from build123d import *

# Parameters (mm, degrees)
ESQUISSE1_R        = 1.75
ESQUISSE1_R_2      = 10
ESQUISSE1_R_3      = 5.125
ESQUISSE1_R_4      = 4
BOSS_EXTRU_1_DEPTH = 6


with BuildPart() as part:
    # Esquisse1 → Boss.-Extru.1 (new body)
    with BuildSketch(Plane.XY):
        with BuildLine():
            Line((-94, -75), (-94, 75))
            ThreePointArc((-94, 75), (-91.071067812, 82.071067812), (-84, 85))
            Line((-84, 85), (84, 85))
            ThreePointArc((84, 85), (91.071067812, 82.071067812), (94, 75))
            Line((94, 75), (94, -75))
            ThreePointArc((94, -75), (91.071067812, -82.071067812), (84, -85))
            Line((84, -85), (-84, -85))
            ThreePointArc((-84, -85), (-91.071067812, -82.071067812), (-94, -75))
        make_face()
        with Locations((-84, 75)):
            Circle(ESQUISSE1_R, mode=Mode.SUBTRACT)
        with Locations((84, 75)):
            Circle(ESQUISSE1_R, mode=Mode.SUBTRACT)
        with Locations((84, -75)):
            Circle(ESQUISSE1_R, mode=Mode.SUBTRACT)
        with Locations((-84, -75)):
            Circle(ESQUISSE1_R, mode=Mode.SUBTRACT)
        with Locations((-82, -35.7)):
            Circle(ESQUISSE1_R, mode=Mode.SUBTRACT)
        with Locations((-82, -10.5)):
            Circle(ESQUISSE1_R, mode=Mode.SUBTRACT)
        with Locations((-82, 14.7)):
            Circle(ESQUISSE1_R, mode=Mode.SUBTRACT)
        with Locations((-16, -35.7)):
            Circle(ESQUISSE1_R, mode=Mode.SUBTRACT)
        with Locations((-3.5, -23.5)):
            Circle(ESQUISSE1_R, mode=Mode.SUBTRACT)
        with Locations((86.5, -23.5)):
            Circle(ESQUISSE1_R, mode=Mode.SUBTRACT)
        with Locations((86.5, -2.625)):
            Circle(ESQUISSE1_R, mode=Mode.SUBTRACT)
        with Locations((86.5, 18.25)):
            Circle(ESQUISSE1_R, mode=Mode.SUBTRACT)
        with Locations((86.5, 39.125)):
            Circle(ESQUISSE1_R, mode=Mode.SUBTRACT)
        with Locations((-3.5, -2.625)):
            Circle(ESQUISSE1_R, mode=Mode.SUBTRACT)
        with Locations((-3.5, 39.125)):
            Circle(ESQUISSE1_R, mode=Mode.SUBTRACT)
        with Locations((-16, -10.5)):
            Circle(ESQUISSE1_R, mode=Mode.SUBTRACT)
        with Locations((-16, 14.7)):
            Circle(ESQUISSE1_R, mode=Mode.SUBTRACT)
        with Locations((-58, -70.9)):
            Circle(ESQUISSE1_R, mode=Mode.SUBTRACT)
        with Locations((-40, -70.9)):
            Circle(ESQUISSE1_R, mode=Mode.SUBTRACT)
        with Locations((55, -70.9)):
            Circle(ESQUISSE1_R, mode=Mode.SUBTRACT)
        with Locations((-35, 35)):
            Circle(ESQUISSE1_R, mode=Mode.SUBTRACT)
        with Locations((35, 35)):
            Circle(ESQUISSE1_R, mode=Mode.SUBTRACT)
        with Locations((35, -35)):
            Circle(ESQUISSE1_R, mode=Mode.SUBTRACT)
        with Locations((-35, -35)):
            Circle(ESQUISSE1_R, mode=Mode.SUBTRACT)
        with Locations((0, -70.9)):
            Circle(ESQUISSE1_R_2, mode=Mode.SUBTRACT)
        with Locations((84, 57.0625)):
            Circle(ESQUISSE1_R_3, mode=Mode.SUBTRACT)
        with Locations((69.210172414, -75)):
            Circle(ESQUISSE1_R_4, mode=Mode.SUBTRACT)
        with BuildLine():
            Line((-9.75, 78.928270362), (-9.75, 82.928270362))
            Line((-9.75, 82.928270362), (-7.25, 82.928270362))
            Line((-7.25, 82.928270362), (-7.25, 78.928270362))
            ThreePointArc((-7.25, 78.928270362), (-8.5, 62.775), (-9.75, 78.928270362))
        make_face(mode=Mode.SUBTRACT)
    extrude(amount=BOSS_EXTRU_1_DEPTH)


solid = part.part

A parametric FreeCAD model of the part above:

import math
import FreeCAD as App
import Part
import Sketcher

V = App.Vector

doc = App.newDocument("Part")
body = doc.addObject("PartDesign::Body", "Body")

# Sketch on XY plane
sketch1 = body.newObject("Sketcher::SketchObject", "Sketch")
sketch1.AttachmentSupport = (doc.getObject("XY_Plane"), [""])
sketch1.MapMode = "FlatFace"
sketch1.addGeometry(Part.LineSegment(V(-94, 75, 0), V(-94, -75, 0)), False)
sketch1.addGeometry(Part.ArcOfCircle(Part.Circle(V(-84, -75, 0), V(0, 0, 1), 10), math.radians(180), math.radians(270)), False)
sketch1.addGeometry(Part.LineSegment(V(-84, -85, 0), V(84, -85, 0)), False)
sketch1.addGeometry(Part.ArcOfCircle(Part.Circle(V(84, -75, 0), V(0, 0, 1), 10), math.radians(-90), math.radians(0)), False)
sketch1.addGeometry(Part.LineSegment(V(94, -75, 0), V(94, 75, 0)), False)
sketch1.addGeometry(Part.ArcOfCircle(Part.Circle(V(84, 75, 0), V(0, 0, 1), 10), math.radians(0), math.radians(90)), False)
sketch1.addGeometry(Part.LineSegment(V(84, 85, 0), V(-84, 85, 0)), False)
sketch1.addGeometry(Part.ArcOfCircle(Part.Circle(V(-84, 75, 0), V(0, 0, 1), 10), math.radians(90), math.radians(180)), False)
sketch1.addGeometry(Part.Circle(V(84, -75, 0), V(0, 0, 1), 1.75), False)
sketch1.addGeometry(Part.Circle(V(69.210172, -75, 0), V(0, 0, 1), 4), False)
sketch1.addGeometry(Part.Circle(V(55, -70.9, 0), V(0, 0, 1), 1.75), False)
sketch1.addGeometry(Part.Circle(V(86.5, -23.5, 0), V(0, 0, 1), 1.75), False)
sketch1.addGeometry(Part.Circle(V(86.5, -2.625, 0), V(0, 0, 1), 1.75), False)
sketch1.addGeometry(Part.Circle(V(35, -35, 0), V(0, 0, 1), 1.75), False)
sketch1.addGeometry(Part.Circle(V(0, -70.9, 0), V(0, 0, 1), 10), False)
sketch1.addGeometry(Part.Circle(V(-40, -70.9, 0), V(0, 0, 1), 1.75), False)
sketch1.addGeometry(Part.Circle(V(-58, -70.9, 0), V(0, 0, 1), 1.75), False)
sketch1.addGeometry(Part.Circle(V(-84, -75, 0), V(0, 0, 1), 1.75), False)
sketch1.addGeometry(Part.Circle(V(-16, -35.7, 0), V(0, 0, 1), 1.75), False)
sketch1.addGeometry(Part.Circle(V(-3.5, -23.5, 0), V(0, 0, 1), 1.75), False)
sketch1.addGeometry(Part.Circle(V(-35, -35, 0), V(0, 0, 1), 1.75), False)
sketch1.addGeometry(Part.Circle(V(-16, -10.5, 0), V(0, 0, 1), 1.75), False)
sketch1.addGeometry(Part.Circle(V(-3.5, -2.625, 0), V(0, 0, 1), 1.75), False)
sketch1.addGeometry(Part.Circle(V(-82, -35.7, 0), V(0, 0, 1), 1.75), False)
sketch1.addGeometry(Part.Circle(V(-82, -10.5, 0), V(0, 0, 1), 1.75), False)
sketch1.addGeometry(Part.Circle(V(86.5, 18.25, 0), V(0, 0, 1), 1.75), False)
sketch1.addGeometry(Part.Circle(V(86.5, 39.125, 0), V(0, 0, 1), 1.75), False)
sketch1.addGeometry(Part.Circle(V(35, 35, 0), V(0, 0, 1), 1.75), False)
sketch1.addGeometry(Part.Circle(V(84, 57.0625, 0), V(0, 0, 1), 5.125), False)
sketch1.addGeometry(Part.Circle(V(84, 75, 0), V(0, 0, 1), 1.75), False)
sketch1.addGeometry(Part.Circle(V(-16, 14.7, 0), V(0, 0, 1), 1.75), False)
sketch1.addGeometry(Part.Circle(V(-3.5, 39.125, 0), V(0, 0, 1), 1.75), False)
sketch1.addGeometry(Part.Circle(V(-35, 35, 0), V(0, 0, 1), 1.75), False)
sketch1.addGeometry(Part.Circle(V(-82, 14.7, 0), V(0, 0, 1), 1.75), False)
sketch1.addGeometry(Part.LineSegment(V(-9.75, 78.92827, 0), V(-9.75, 82.92827, 0)), False)
sketch1.addGeometry(Part.LineSegment(V(-9.75, 82.92827, 0), V(-7.25, 82.92827, 0)), False)
sketch1.addGeometry(Part.LineSegment(V(-7.25, 82.92827, 0), V(-7.25, 78.92827, 0)), False)
sketch1.addGeometry(Part.ArcOfCircle(Part.Circle(V(-8.5, 70.9, 0), V(0, 0, 1), 8.125), math.radians(98.849883), math.radians(441.150117)), False)
sketch1.addGeometry(Part.Circle(V(-84, 75, 0), V(0, 0, 1), 1.75), False)
sketch1.addConstraint(Sketcher.Constraint("Tangent", 0, 2, 1, 1))
sketch1.addConstraint(Sketcher.Constraint("Tangent", 1, 2, 2, 1))
sketch1.addConstraint(Sketcher.Constraint("Tangent", 2, 2, 3, 1))
sketch1.addConstraint(Sketcher.Constraint("Tangent", 3, 2, 4, 1))
sketch1.addConstraint(Sketcher.Constraint("Tangent", 4, 2, 5, 1))
sketch1.addConstraint(Sketcher.Constraint("Tangent", 5, 2, 6, 1))
sketch1.addConstraint(Sketcher.Constraint("Tangent", 6, 2, 7, 1))
sketch1.addConstraint(Sketcher.Constraint("Tangent", 7, 2, 0, 1))
sketch1.addConstraint(Sketcher.Constraint("Coincident", 34, 2, 35, 1))
sketch1.addConstraint(Sketcher.Constraint("Coincident", 35, 2, 36, 1))
sketch1.addConstraint(Sketcher.Constraint("Coincident", 36, 2, 37, 2))
sketch1.addConstraint(Sketcher.Constraint("Coincident", 37, 1, 34, 1))
sketch1.addConstraint(Sketcher.Constraint("Vertical", 0))
sketch1.addConstraint(Sketcher.Constraint("Horizontal", 2))
sketch1.addConstraint(Sketcher.Constraint("Vertical", 4))
sketch1.addConstraint(Sketcher.Constraint("Horizontal", 6))
sketch1.addConstraint(Sketcher.Constraint("Vertical", 34))
sketch1.addConstraint(Sketcher.Constraint("Horizontal", 35))
sketch1.addConstraint(Sketcher.Constraint("Vertical", 36))
sketch1.addConstraint(Sketcher.Constraint("Coincident", 8, 3, 3, 3))
sketch1.addConstraint(Sketcher.Constraint("Coincident", 17, 3, 1, 3))
sketch1.addConstraint(Sketcher.Constraint("Coincident", 29, 3, 5, 3))
sketch1.addConstraint(Sketcher.Constraint("Coincident", 38, 3, 7, 3))
sketch1.addConstraint(Sketcher.Constraint("Equal", 1, 3))
sketch1.addConstraint(Sketcher.Constraint("Equal", 3, 5))
sketch1.addConstraint(Sketcher.Constraint("Equal", 5, 7))
sketch1.addConstraint(Sketcher.Constraint("Equal", 8, 10))
sketch1.addConstraint(Sketcher.Constraint("Equal", 10, 11))
sketch1.addConstraint(Sketcher.Constraint("Equal", 11, 12))
sketch1.addConstraint(Sketcher.Constraint("Equal", 12, 13))
sketch1.addConstraint(Sketcher.Constraint("Equal", 7, 14))
sketch1.addConstraint(Sketcher.Constraint("Equal", 13, 15))
sketch1.addConstraint(Sketcher.Constraint("Equal", 15, 16))
sketch1.addConstraint(Sketcher.Constraint("Equal", 16, 17))
sketch1.addConstraint(Sketcher.Constraint("Equal", 17, 18))
sketch1.addConstraint(Sketcher.Constraint("Equal", 18, 19))
sketch1.addConstraint(Sketcher.Constraint("Equal", 19, 20))
sketch1.addConstraint(Sketcher.Constraint("Equal", 20, 21))
sketch1.addConstraint(Sketcher.Constraint("Equal", 21, 22))
sketch1.addConstraint(Sketcher.Constraint("Equal", 22, 23))
sketch1.addConstraint(Sketcher.Constraint("Equal", 23, 24))
sketch1.addConstraint(Sketcher.Constraint("Equal", 24, 25))
sketch1.addConstraint(Sketcher.Constraint("Equal", 25, 26))
sketch1.addConstraint(Sketcher.Constraint("Equal", 26, 27))
sketch1.addConstraint(Sketcher.Constraint("Equal", 27, 29))
sketch1.addConstraint(Sketcher.Constraint("Equal", 29, 30))
sketch1.addConstraint(Sketcher.Constraint("Equal", 30, 31))
sketch1.addConstraint(Sketcher.Constraint("Equal", 31, 32))
sketch1.addConstraint(Sketcher.Constraint("Equal", 32, 33))
sketch1.addConstraint(Sketcher.Constraint("Equal", 33, 38))
sketch1.addConstraint(Sketcher.Constraint("Symmetric", 1, 3, 5, 3, -1, 1))
sketch1.addConstraint(Sketcher.Constraint("Symmetric", 20, 3, 27, 3, -1, 1))
sketch1.addConstraint(Sketcher.Constraint("Symmetric", 13, 3, 32, 3, -1, 1))
sketch1.addConstraint(Sketcher.Constraint("Symmetric", 13, 3, 20, 3, -2))
sketch1.addConstraint(Sketcher.Constraint("PointOnObject", 14, 3, -2))
sketch1.addConstraint(Sketcher.Constraint("Horizontal", 8, 3, 9, 3))
sketch1.addConstraint(Sketcher.Constraint("Horizontal", 10, 3, 14, 3))
sketch1.addConstraint(Sketcher.Constraint("Horizontal", 14, 3, 15, 3))
sketch1.addConstraint(Sketcher.Constraint("Horizontal", 15, 3, 16, 3))
sketch1.addConstraint(Sketcher.Constraint("Horizontal", 11, 3, 19, 3))
sketch1.addConstraint(Sketcher.Constraint("Horizontal", 12, 3, 22, 3))
sketch1.addConstraint(Sketcher.Constraint("Horizontal", 18, 3, 23, 3))
sketch1.addConstraint(Sketcher.Constraint("Horizontal", 21, 3, 24, 3))
sketch1.addConstraint(Sketcher.Constraint("Horizontal", 26, 3, 31, 3))
sketch1.addConstraint(Sketcher.Constraint("Horizontal", 30, 3, 33, 3))
sketch1.addConstraint(Sketcher.Constraint("Horizontal", 36, 2, 37, 1))
sketch1.addConstraint(Sketcher.Constraint("Vertical", 11, 3, 12, 3))
sketch1.addConstraint(Sketcher.Constraint("Vertical", 18, 3, 21, 3))
sketch1.addConstraint(Sketcher.Constraint("Vertical", 19, 3, 22, 3))
sketch1.addConstraint(Sketcher.Constraint("Vertical", 23, 3, 24, 3))
sketch1.addConstraint(Sketcher.Constraint("Vertical", 12, 3, 25, 3))
sketch1.addConstraint(Sketcher.Constraint("Vertical", 25, 3, 26, 3))
sketch1.addConstraint(Sketcher.Constraint("Vertical", 8, 3, 28, 3))
sketch1.addConstraint(Sketcher.Constraint("Vertical", 21, 3, 30, 3))
sketch1.addConstraint(Sketcher.Constraint("Vertical", 22, 3, 31, 3))
sketch1.addConstraint(Sketcher.Constraint("Vertical", 24, 3, 33, 3))
sketch1.addConstraint(Sketcher.Constraint("Diameter", 9, 8.0))
sketch1.addConstraint(Sketcher.Constraint("Diameter", 14, 20.0))
sketch1.addConstraint(Sketcher.Constraint("Diameter", 8, 3.5))
sketch1.addConstraint(Sketcher.Constraint("Diameter", 28, 10.25))
sketch1.addConstraint(Sketcher.Constraint("DistanceX", 2, 1, 2, 2, 168.0))
sketch1.addConstraint(Sketcher.Constraint("DistanceY", 0, 2, 0, 1, 150.0))
sketch1.addConstraint(Sketcher.Constraint("DistanceY", 34, 1, 34, 2, 4.0))
sketch1.addConstraint(Sketcher.Constraint("DistanceX", 35, 1, 35, 2, 2.5))
sketch1.addConstraint(Sketcher.Constraint("DistanceX", -1, 1, 10, 3, 55.0))
sketch1.addConstraint(Sketcher.Constraint("DistanceX", -1, 1, 13, 3, 35.0))
sketch1.addConstraint(Sketcher.Constraint("DistanceY", 13, 3, -1, 1, 35.0))
sketch1.addConstraint(Sketcher.Constraint("DistanceX", 15, 3, -1, 1, 40.0))
sketch1.addConstraint(Sketcher.Constraint("DistanceX", 16, 3, -1, 1, 58.0))
sketch1.addConstraint(Sketcher.Constraint("DistanceX", 18, 3, -1, 1, 16.0))
sketch1.addConstraint(Sketcher.Constraint("DistanceX", 23, 3, -1, 1, 82.0))
sketch1.addConstraint(Sketcher.Constraint("Radius", 37, 8.125))
sketch1.addConstraint(Sketcher.Constraint("DistanceY", 19, 3, 21, 3, 13.0))
sketch1.addConstraint(Sketcher.Constraint("DistanceX", 22, 3, 25, 3, 90.0))
sketch1.addConstraint(Sketcher.Constraint("DistanceX", 37, 3, 31, 3, 5.0))
sketch1.addConstraint(Sketcher.Constraint("DistanceY", 10, 3, -1, 1, 70.9))
sketch1.addConstraint(Sketcher.Constraint("DistanceX", -1, 1, 11, 3, 86.5))
sketch1.addConstraint(Sketcher.Constraint("DistanceY", 11, 3, -1, 1, 23.5))
sketch1.addConstraint(Sketcher.Constraint("DistanceY", 18, 3, -1, 1, 35.7))
sketch1.addConstraint(Sketcher.Constraint("DistanceY", -1, 1, 30, 3, 14.7))
sketch1.addConstraint(Sketcher.Constraint("DistanceY", -1, 1, 37, 3, 70.9))
sketch1.addConstraint(Sketcher.Constraint("DistanceY", -1, 1, 25, 3, 18.25))
sketch1.addConstraint(Sketcher.Constraint("DistanceY", 12, 3, 26, 3, 41.75))
sketch1.addConstraint(Sketcher.Constraint("DistanceY", 12, 3, -1, 1, 2.625))
sketch1.addConstraint(Sketcher.Constraint("DistanceY", -1, 1, 28, 3, 57.0625))
sketch1.addConstraint(Sketcher.Constraint("DistanceX", -1, 1, 9, 3, 69.210172))
pad1 = body.newObject("PartDesign::Pad", "Pad")
pad1.Profile = sketch1
pad1.Length = 6

doc.recompute()
